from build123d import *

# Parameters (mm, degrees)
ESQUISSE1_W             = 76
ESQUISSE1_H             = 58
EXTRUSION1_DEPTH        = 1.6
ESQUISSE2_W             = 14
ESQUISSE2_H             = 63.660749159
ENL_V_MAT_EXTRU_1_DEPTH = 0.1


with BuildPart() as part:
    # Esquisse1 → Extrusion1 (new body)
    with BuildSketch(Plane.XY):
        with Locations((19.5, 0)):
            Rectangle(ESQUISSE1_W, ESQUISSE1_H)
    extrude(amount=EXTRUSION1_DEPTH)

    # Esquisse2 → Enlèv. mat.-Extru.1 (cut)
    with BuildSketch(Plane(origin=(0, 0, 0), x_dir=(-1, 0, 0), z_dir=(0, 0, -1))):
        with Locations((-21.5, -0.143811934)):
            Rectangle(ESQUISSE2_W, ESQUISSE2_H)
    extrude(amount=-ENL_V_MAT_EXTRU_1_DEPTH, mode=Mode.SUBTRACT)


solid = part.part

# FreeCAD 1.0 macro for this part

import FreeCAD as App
import Part
import Sketcher


def add_polygon(sketch, points):
    """Adds a closed chain of lines whose ends are joined by coincident constraints."""
    first, n = sketch.GeometryCount, len(points)
    for a, b in zip(points, points[1:] + points[:1]):
        sketch.addGeometry(Part.LineSegment(App.Vector(*a, 0), App.Vector(*b, 0)), False)
    for i in range(n):
        sketch.addConstraint(Sketcher.Constraint("Coincident", first + i, 2, first + (i + 1) % n, 1))

doc = App.newDocument("Part")
body = doc.addObject("PartDesign::Body", "Body")

# Sketch on XY plane
sketch1 = body.newObject("Sketcher::SketchObject", "Sketch")
sketch1.AttachmentSupport = (doc.getObject("XY_Plane"), [""])
sketch1.MapMode = "FlatFace"
add_polygon(sketch1, [(-18, 29), (-18, -29), (58, -29), (58, 29)])  # lines 0-3
sketch1.addConstraint([
    Sketcher.Constraint("Vertical", 0),
    Sketcher.Constraint("Horizontal", 1),
    Sketcher.Constraint("Vertical", 2),
    Sketcher.Constraint("Horizontal", 3),
    Sketcher.Constraint("DistanceX", 1, 1, 1, 2, 76.0),
    Sketcher.Constraint("DistanceY", 0, 2, 0, 1, 58.0),
    Sketcher.Constraint("DistanceY", 0, 2, -1, 1, 29.0),
    Sketcher.Constraint("DistanceX", 0, 2, -1, 1, 18.5),
])
pad1 = body.newObject("PartDesign::Pad", "Pad")
pad1.Profile = sketch1
pad1.Length = 1.6

# Sketch on XY plane
sketch2 = body.newObject("Sketcher::SketchObject", "Sketch001")
sketch2.AttachmentSupport = (doc.getObject("XY_Plane"), [""])
sketch2.MapMode = "FlatFace"
add_polygon(sketch2, [(28, 32), (28, -32), (14, -32), (14, 32)])  # lines 0-3
sketch2.addConstraint([
    Sketcher.Constraint("Vertical", 0),
    Sketcher.Constraint("Horizontal", 1),
    Sketcher.Constraint("Vertical", 2),
    Sketcher.Constraint("Horizontal", 3),
    Sketcher.Constraint("DistanceX", 1, 2, 1, 1, 14.0),
    Sketcher.Constraint("DistanceX", -1, 1, 0, 2, 28.5),
    Sketcher.Constraint("DistanceY", 0, 2, 0, 1, 63.660749),
    Sketcher.Constraint("DistanceY", 0, 2, -1, 1, 31.974187),
])
pocket1 = body.newObject("PartDesign::Pocket", "Pocket")
pocket1.Profile = sketch2
pocket1.Length = 0.1
pocket1.Reversed = True

doc.recompute()
